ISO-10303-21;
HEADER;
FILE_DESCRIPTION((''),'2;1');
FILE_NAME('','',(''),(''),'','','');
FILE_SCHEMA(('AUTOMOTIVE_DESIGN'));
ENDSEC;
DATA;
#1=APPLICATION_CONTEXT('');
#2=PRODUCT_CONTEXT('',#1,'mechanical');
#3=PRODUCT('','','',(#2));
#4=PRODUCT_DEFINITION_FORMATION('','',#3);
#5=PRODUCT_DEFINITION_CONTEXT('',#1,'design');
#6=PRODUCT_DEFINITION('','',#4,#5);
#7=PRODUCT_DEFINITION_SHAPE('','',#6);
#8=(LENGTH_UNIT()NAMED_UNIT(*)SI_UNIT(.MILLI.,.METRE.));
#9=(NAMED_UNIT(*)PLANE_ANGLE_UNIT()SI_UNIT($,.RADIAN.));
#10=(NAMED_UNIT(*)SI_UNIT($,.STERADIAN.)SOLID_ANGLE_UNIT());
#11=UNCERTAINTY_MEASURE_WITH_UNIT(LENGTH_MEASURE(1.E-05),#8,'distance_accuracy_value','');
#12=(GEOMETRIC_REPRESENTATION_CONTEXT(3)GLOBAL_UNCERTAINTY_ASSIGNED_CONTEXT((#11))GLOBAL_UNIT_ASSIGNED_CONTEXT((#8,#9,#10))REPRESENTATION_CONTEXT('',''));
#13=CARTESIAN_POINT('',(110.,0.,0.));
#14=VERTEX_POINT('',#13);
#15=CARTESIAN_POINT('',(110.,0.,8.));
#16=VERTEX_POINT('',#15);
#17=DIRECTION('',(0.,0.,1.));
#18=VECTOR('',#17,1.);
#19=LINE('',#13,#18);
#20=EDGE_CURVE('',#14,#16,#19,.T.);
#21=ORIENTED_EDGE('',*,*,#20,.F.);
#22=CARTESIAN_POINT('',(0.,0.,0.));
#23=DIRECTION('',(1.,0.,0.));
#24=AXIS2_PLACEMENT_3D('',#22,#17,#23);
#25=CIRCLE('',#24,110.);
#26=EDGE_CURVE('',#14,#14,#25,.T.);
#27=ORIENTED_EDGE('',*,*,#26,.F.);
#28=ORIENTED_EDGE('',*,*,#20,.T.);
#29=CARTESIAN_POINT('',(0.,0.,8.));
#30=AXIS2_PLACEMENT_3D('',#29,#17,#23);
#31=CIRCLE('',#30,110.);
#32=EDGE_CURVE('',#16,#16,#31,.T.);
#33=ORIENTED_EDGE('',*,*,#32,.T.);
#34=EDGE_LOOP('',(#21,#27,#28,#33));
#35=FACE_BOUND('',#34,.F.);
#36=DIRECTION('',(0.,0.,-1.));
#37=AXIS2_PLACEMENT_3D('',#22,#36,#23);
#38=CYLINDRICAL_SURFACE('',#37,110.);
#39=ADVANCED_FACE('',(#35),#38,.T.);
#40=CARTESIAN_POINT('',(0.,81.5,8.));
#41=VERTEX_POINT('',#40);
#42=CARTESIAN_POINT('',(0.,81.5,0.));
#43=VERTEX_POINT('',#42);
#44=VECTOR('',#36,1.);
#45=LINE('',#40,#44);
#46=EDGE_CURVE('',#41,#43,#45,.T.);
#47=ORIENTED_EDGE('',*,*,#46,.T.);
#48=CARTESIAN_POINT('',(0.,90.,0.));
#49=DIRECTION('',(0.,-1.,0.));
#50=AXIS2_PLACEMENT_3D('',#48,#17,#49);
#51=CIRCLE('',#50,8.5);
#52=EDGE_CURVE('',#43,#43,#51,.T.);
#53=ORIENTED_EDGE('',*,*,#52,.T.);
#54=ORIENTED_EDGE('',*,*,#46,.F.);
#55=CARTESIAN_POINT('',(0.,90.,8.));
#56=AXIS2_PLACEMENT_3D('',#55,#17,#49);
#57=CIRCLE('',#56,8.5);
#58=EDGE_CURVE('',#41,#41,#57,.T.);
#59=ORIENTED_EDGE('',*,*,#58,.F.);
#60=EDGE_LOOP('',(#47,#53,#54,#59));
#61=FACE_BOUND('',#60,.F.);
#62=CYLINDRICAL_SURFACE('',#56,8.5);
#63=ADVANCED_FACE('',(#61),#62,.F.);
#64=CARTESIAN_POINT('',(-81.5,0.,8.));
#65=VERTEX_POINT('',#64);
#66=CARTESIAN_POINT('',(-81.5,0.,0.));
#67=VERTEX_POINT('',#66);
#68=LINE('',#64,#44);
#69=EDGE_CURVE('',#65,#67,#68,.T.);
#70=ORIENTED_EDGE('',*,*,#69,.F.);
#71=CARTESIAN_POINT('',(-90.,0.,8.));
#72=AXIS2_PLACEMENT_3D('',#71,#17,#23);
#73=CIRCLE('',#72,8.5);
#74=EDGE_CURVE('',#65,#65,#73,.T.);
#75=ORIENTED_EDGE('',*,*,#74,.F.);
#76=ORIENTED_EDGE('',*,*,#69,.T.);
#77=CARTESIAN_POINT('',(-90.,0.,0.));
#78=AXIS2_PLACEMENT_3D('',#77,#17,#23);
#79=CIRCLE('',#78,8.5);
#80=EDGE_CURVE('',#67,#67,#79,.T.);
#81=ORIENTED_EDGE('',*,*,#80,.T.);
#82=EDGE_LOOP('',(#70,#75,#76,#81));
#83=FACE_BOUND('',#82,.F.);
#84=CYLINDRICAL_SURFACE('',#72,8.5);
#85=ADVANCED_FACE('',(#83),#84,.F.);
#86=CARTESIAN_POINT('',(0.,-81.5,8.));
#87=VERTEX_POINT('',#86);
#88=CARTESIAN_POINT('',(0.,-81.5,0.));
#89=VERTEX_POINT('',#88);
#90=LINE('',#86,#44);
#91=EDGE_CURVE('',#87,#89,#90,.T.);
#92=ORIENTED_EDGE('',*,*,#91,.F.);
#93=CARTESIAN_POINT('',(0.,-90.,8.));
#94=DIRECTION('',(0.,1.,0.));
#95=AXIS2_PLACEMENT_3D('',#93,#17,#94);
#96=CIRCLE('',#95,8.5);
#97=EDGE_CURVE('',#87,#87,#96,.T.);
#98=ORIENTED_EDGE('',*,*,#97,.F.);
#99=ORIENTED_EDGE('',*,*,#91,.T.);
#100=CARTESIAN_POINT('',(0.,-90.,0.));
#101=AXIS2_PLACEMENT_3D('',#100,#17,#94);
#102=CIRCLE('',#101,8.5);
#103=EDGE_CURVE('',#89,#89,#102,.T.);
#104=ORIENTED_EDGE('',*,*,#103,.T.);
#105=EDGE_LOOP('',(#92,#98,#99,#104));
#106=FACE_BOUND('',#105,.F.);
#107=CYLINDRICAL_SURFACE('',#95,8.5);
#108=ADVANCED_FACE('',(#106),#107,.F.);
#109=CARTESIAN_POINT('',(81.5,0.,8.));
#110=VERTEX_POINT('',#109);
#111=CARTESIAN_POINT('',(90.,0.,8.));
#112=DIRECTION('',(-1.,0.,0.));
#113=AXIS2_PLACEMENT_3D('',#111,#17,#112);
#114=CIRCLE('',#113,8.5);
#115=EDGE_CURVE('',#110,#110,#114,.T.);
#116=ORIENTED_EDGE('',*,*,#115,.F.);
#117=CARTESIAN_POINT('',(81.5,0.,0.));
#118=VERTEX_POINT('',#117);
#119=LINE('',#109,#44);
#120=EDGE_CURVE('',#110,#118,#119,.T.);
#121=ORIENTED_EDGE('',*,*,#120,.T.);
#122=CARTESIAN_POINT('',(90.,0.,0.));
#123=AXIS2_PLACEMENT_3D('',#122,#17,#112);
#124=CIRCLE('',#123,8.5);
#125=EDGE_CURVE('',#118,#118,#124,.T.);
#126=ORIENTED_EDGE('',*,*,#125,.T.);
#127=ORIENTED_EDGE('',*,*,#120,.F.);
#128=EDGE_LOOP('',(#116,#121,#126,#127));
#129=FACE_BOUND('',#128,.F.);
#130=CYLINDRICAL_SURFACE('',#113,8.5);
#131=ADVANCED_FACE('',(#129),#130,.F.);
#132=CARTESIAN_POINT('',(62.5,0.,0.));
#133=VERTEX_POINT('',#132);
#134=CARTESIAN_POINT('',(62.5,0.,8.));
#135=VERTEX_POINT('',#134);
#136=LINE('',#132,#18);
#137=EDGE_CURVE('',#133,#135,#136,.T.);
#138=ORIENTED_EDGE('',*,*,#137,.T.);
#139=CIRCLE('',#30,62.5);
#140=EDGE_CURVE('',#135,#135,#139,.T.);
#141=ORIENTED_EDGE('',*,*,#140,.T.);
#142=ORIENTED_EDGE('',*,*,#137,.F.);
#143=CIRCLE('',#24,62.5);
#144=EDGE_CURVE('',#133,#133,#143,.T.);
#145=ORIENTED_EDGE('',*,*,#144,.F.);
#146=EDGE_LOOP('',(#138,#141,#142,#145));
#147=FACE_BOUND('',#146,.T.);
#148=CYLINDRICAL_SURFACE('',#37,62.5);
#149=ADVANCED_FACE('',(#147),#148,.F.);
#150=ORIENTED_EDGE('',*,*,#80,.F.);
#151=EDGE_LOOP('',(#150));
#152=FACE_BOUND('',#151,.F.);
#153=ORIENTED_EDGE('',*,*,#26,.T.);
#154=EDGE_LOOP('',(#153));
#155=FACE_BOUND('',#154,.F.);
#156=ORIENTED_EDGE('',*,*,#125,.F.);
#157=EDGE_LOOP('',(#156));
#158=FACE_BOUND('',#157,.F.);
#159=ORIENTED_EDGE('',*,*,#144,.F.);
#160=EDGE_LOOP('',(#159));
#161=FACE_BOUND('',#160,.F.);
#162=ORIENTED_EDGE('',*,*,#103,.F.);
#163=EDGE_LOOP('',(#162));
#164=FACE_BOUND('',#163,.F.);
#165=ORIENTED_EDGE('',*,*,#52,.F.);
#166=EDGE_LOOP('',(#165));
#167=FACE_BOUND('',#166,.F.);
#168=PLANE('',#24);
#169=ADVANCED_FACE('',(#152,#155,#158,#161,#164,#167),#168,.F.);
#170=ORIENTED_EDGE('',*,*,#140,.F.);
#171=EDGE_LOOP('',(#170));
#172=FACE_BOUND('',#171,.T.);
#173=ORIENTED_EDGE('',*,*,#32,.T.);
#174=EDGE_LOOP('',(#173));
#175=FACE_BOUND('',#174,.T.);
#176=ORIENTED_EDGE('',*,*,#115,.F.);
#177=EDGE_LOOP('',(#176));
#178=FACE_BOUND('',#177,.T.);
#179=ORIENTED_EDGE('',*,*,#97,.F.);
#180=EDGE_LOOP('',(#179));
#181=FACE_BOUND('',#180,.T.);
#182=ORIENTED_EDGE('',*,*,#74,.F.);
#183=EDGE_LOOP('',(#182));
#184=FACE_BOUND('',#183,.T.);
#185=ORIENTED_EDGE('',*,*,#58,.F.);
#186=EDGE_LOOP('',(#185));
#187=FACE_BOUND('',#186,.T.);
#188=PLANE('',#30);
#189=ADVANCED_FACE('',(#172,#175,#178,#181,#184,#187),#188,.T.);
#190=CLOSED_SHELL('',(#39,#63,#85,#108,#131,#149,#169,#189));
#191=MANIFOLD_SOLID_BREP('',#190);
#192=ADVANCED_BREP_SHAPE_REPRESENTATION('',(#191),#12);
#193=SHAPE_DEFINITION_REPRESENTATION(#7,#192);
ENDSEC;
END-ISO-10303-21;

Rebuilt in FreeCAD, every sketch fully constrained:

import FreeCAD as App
import Part
import Sketcher

doc = App.newDocument("Part")
params = doc.addObject("Spreadsheet::Sheet", "Params")
for row, (alias, value) in enumerate([
    ("sketch1_diameter", "220 mm"),
    ("sketch1_diameter2", "125 mm"),
    ("pad1_length", "8 mm"),
    ("sketch2_diameter", "17 mm"),
    ("pocket1_length", "8 mm"),
], start=1):
    params.set(f"A{row}", alias)
    params.set(f"B{row}", "=" + value)
    params.setAlias(f"B{row}", alias)

body = doc.addObject("PartDesign::Body", "Body")

sketch1 = doc.addObject("Sketcher::SketchObject", "Sketch")
body.addObject(sketch1)
sketch1.AttachmentSupport = (doc.XY_Plane, [""])
sketch1.MapMode = "FlatFace"
sketch1.addGeometry(Part.Circle(App.Vector(0, 0, 0), App.Vector(0, 0, 1), 110), False)
sketch1.addGeometry(Part.Circle(App.Vector(0, 0, 0), App.Vector(0, 0, 1), 62), False)
sketch1.addConstraint(Sketcher.Constraint("Coincident", 0, 3, -1, 1))
sketch1.addConstraint(Sketcher.Constraint("Coincident", 1, 3, -1, 1))
sketch1.addConstraint(Sketcher.Constraint("Diameter", 0, 220.0))
sketch1.addConstraint(Sketcher.Constraint("Diameter", 1, 125.0))
sketch1.setExpression("Constraints[2]", "Params.sketch1_diameter")
sketch1.setExpression("Constraints[3]", "Params.sketch1_diameter2")
pad1 = doc.addObject("PartDesign::Pad", "Pad")
body.addObject(pad1)
pad1.Profile = sketch1
pad1.setExpression("Length", "Params.pad1_length")

sketch2 = doc.addObject("Sketcher::SketchObject", "Sketch001")
body.addObject(sketch2)
sketch2.AttachmentSupport = (doc.XY_Plane, [""])
sketch2.MapMode = "FlatFace"
sketch2.AttachmentOffset = App.Placement(App.Vector(0, 0, 8), App.Rotation())
sketch2.addGeometry(Part.Circle(App.Vector(-90, 0, 0), App.Vector(0, 0, 1), 8), False)
sketch2.addConstraint(Sketcher.Constraint("PointOnObject", 0, 3, -1))
sketch2.addConstraint(Sketcher.Constraint("Diameter", 0, 17.0))
sketch2.addConstraint(Sketcher.Constraint("DistanceX", 0, 3, -1, 1, 90.0))
sketch2.setExpression("Constraints[1]", "Params.sketch2_diameter")
pocket1 = doc.addObject("PartDesign::Pocket", "Pocket")
body.addObject(pocket1)
pocket1.Profile = sketch2
pocket1.setExpression("Length", "Params.pocket1_length")
doc.recompute()

polarpattern = doc.addObject("PartDesign::PolarPattern", "PolarPattern")
body.addObject(polarpattern)
polarpattern.Originals = [pocket1]
polarpattern.Axis = (doc.Z_Axis, [""])
polarpattern.Angle = 360
polarpattern.Occurrences = 4
body.Tip = polarpattern

doc.recompute()
